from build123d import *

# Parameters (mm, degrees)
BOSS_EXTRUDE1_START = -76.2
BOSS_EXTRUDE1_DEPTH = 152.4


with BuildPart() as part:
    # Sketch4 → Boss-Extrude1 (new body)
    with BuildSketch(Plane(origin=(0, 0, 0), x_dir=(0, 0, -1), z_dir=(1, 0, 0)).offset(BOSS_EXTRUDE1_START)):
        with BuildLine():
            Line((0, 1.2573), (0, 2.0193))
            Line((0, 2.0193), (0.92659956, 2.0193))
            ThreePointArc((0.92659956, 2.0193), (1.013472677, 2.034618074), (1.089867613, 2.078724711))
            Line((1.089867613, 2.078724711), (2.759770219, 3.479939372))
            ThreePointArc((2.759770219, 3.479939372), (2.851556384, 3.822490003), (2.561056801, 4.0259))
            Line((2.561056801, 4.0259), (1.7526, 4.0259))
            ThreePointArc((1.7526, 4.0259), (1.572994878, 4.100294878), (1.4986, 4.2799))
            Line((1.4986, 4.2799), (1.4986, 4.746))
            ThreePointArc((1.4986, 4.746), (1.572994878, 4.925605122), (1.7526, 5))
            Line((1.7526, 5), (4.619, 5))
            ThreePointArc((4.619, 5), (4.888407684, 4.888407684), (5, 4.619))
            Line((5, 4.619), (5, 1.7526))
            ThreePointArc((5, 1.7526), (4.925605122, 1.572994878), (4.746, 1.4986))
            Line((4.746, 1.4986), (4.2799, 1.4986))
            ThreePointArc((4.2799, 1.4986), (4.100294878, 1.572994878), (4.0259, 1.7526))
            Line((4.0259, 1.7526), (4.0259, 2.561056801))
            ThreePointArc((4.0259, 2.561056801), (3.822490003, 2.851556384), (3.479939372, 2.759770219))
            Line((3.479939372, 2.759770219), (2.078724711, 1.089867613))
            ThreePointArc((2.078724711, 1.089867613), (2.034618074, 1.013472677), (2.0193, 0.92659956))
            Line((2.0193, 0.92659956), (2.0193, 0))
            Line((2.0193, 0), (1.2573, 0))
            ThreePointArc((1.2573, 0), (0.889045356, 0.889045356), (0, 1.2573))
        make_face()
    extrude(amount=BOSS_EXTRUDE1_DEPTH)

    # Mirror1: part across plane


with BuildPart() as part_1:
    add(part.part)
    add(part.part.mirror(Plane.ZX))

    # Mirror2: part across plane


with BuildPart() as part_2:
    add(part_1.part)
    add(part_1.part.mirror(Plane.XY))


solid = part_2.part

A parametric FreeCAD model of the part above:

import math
import FreeCAD as App
import Part
import Sketcher

V = App.Vector
Q = App.Units.Quantity

doc = App.newDocument("Part")
body = doc.addObject("PartDesign::Body", "Body")

# Sketch on YZ plane
sketch1 = doc.addObject("Sketcher::SketchObject", "Sketch")
body.addObject(sketch1)
sketch1.AttachmentSupport = (doc.YZ_Plane, [""])
sketch1.MapMode = "FlatFace"
sketch1.AttachmentOffset = App.Placement(V(0, 0, -3 * 25.4), App.Rotation())
sketch1.addGeometry([
    Part.LineSegment(V(2.0193, 0, 0), V(1.2573, 0, 0)),  # 0
    Part.ArcOfCircle(Part.Circle(V(0, 0, 0), V(0, 0, 1), 1.2573), math.radians(-90), math.radians(0)),  # 1
    Part.LineSegment(V(0, -1.2573, 0), V(0, -2.0193, 0)),  # 2
    Part.LineSegment(V(0, -2.0193, 0), V(0.9266, -2.0193, 0)),  # 3
    Part.ArcOfCircle(Part.Circle(V(0.9266, -2.2733, 0), V(0, 0, 1), 0.254), math.radians(50), math.radians(90)),  # 4
    Part.LineSegment(V(1.089868, -2.078725, 0), V(2.75977, -3.479939, 0)),  # 5
    Part.ArcOfCircle(Part.Circle(V(2.561057, -3.716757, 0), V(0, 0, 1), 0.309143), math.radians(-90), math.radians(50)),  # 6
    Part.LineSegment(V(2.561057, -4.0259, 0), V(1.7526, -4.0259, 0)),  # 7
    Part.ArcOfCircle(Part.Circle(V(1.7526, -4.2799, 0), V(0, 0, 1), 0.254), math.radians(90), math.radians(180)),  # 8
    Part.LineSegment(V(1.4986, -4.2799, 0), V(1.4986, -4.746, 0)),  # 9
    Part.ArcOfCircle(Part.Circle(V(1.7526, -4.746, 0), V(0, 0, 1), 0.254), math.radians(-180), math.radians(-90)),  # 10
    Part.LineSegment(V(1.7526, -5, 0), V(4.619, -5, 0)),  # 11
    Part.ArcOfCircle(Part.Circle(V(4.619, -4.619, 0), V(0, 0, 1), 0.381), math.radians(-90), math.radians(0)),  # 12
    Part.LineSegment(V(5, -4.619, 0), V(5, -1.7526, 0)),  # 13
    Part.ArcOfCircle(Part.Circle(V(4.746, -1.7526, 0), V(0, 0, 1), 0.254), math.radians(0), math.radians(90)),  # 14
    Part.LineSegment(V(4.746, -1.4986, 0), V(4.2799, -1.4986, 0)),  # 15
    Part.ArcOfCircle(Part.Circle(V(4.2799, -1.7526, 0), V(0, 0, 1), 0.254), math.radians(90), math.radians(180)),  # 16
    Part.LineSegment(V(4.0259, -1.7526, 0), V(4.0259, -2.561057, 0)),  # 17
    Part.ArcOfCircle(Part.Circle(V(3.716757, -2.561057, 0), V(0, 0, 1), 0.309143), math.radians(-140), math.radians(0)),  # 18
    Part.LineSegment(V(3.479939, -2.75977, 0), V(2.078725, -1.089868, 0)),  # 19
    Part.ArcOfCircle(Part.Circle(V(2.2733, -0.9266, 0), V(0, 0, 1), 0.254), math.radians(180), math.radians(220)),  # 20
    Part.LineSegment(V(2.0193, -0.9266, 0), V(2.0193, 0, 0)),  # 21
], False)
sketch1.addConstraint([
    Sketcher.Constraint("Coincident", 0, 2, 1, 2),
    Sketcher.Constraint("Coincident", 1, 1, 2, 1),
    Sketcher.Constraint("Coincident", 2, 2, 3, 1),
    Sketcher.Constraint("Tangent", 3, 2, 4, 2),
    Sketcher.Constraint("Tangent", 4, 1, 5, 1),
    Sketcher.Constraint("Tangent", 5, 2, 6, 2),
    Sketcher.Constraint("Tangent", 6, 1, 7, 1),
    Sketcher.Constraint("Tangent", 7, 2, 8, 1),
    Sketcher.Constraint("Tangent", 8, 2, 9, 1),
    Sketcher.Constraint("Tangent", 9, 2, 10, 1),
    Sketcher.Constraint("Tangent", 10, 2, 11, 1),
    Sketcher.Constraint("Tangent", 11, 2, 12, 1),
    Sketcher.Constraint("Tangent", 12, 2, 13, 1),
    Sketcher.Constraint("Tangent", 13, 2, 14, 1),
    Sketcher.Constraint("Tangent", 14, 2, 15, 1),
    Sketcher.Constraint("Tangent", 15, 2, 16, 1),
    Sketcher.Constraint("Tangent", 16, 2, 17, 1),
    Sketcher.Constraint("Tangent", 17, 2, 18, 2),
    Sketcher.Constraint("Tangent", 18, 1, 19, 1),
    Sketcher.Constraint("Tangent", 19, 2, 20, 2),
    Sketcher.Constraint("Tangent", 20, 1, 21, 1),
    Sketcher.Constraint("Coincident", 21, 2, 0, 1),
    Sketcher.Constraint("Horizontal", 0),
    Sketcher.Constraint("Vertical", 2),
    Sketcher.Constraint("Horizontal", 3),
    Sketcher.Constraint("Horizontal", 7),
    Sketcher.Constraint("Vertical", 9),
    Sketcher.Constraint("Horizontal", 11),
    Sketcher.Constraint("Vertical", 13),
    Sketcher.Constraint("Horizontal", 15),
    Sketcher.Constraint("Vertical", 17),
    Sketcher.Constraint("Vertical", 21),
    Sketcher.Constraint("Coincident", 1, 3, -1, 1),
    Sketcher.Constraint("Equal", 4, 8),
    Sketcher.Constraint("Equal", 8, 10),
    Sketcher.Constraint("Equal", 10, 14),
    Sketcher.Constraint("Equal", 14, 16),
    Sketcher.Constraint("Equal", 6, 18),
    Sketcher.Constraint("Equal", 16, 20),
    Sketcher.Constraint("PointOnObject", 0, 2, -1),
    Sketcher.Constraint("PointOnObject", 1, 1, -2),
    Sketcher.Constraint("Equal", 0, 2),
    Sketcher.Constraint("Equal", 15, 9),
    Sketcher.Constraint("Equal", 11, 13),
    Sketcher.Constraint("Equal", 7, 17),
    Sketcher.Constraint("Equal", 3, 21),
    Sketcher.Constraint("Equal", 5, 19),
    Sketcher.Constraint("Radius", 4, Q("0.01 in")),
    Sketcher.Constraint("Angle", 5, Q("-40 deg")),
    Sketcher.Constraint("Radius", 12, Q("0.015 in")),
    Sketcher.Constraint("DistanceX", 0, 2, 0, 1, Q("0.03 in")),
    Sketcher.Constraint("Radius", 1, Q("0.0495 in")),
    Sketcher.Constraint("DistanceX", -1, 1, 8, 3, Q("0.069 in")),
    Sketcher.Constraint("DistanceY", 8, 3, 4, 3, Q("0.079 in")),
    Sketcher.Constraint("DistanceX", 3, 1, 3, 2, 0.9266),
    Sketcher.Constraint("DistanceX", 11, 1, 11, 2, 2.8664),
    Sketcher.Constraint("Radius", 6, 0.309143),
])
pad1 = doc.addObject("PartDesign::Pad", "Pad")
body.addObject(pad1)
pad1.Profile = sketch1
pad1.Length = Q("6 in")
body2 = doc.addObject("PartDesign::Body", "Body001")
doc.recompute()

body2.BaseFeature = body
doc.recompute()

mirroring = doc.addObject("Part::Mirroring", "Mirroring")
mirroring.Source = body
mirroring.Base = V(0, 0, 0)
mirroring.Normal = V(0, 1, 0)
body3 = doc.addObject("PartDesign::Body", "Body002")
body3.BaseFeature = mirroring
boolean = doc.addObject("PartDesign::Boolean", "Boolean")
body2.addObject(boolean)
boolean.Type = "Fuse"
boolean.addObjects([body3])
doc.recompute()
body4 = doc.addObject("PartDesign::Body", "Body003")
doc.recompute()

body4.BaseFeature = body2
doc.recompute()

mirroring2 = doc.addObject("Part::Mirroring", "Mirroring001")
mirroring2.Source = body2
mirroring2.Base = V(0, 0, 0)
mirroring2.Normal = V(0, 0, 1)
body5 = doc.addObject("PartDesign::Body", "Body004")
body5.BaseFeature = mirroring2
boolean2 = doc.addObject("PartDesign::Boolean", "Boolean001")
body4.addObject(boolean2)
boolean2.Type = "Fuse"
boolean2.addObjects([body5])
doc.recompute()
mirroring.Visibility = False
mirroring2.Visibility = False

doc.recompute()
